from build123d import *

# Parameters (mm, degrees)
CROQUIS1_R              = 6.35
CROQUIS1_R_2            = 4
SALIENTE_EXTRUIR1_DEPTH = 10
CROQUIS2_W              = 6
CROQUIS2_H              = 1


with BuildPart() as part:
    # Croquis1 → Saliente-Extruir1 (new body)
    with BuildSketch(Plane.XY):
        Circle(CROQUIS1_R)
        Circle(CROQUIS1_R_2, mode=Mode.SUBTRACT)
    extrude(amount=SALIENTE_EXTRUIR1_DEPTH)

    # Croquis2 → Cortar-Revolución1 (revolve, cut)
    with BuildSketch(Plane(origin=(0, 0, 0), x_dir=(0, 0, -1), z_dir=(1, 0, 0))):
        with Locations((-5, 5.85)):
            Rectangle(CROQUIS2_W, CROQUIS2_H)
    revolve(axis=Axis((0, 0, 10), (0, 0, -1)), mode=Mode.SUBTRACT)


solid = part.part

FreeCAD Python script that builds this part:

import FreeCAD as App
import Part
import Sketcher


def add_polygon(sketch, points):
    """Adds a closed chain of lines whose ends are joined by coincident constraints."""
    first, n = sketch.GeometryCount, len(points)
    for a, b in zip(points, points[1:] + points[:1]):
        sketch.addGeometry(Part.LineSegment(App.Vector(*a, 0), App.Vector(*b, 0)), False)
    for i in range(n):
        sketch.addConstraint(Sketcher.Constraint("Coincident", first + i, 2, first + (i + 1) % n, 1))

doc = App.newDocument("Part")
body = doc.addObject("PartDesign::Body", "Body")

sketch1 = body.newObject("Sketcher::SketchObject", "Sketch")
sketch1.AttachmentSupport = (doc.getObject("XY_Plane"), [""])
sketch1.MapMode = "FlatFace"
sketch1.addGeometry([
    Part.Circle(App.Vector(0, 0, 0), App.Vector(0, 0, 1), 6.3),
    Part.Circle(App.Vector(0, 0, 0), App.Vector(0, 0, 1), 4),
], False)
sketch1.addConstraint([
    Sketcher.Constraint("Coincident", 0, 3, -1, 1),
    Sketcher.Constraint("Coincident", 1, 3, -1, 1),
    Sketcher.Constraint("Diameter", 1, 8.0),
    Sketcher.Constraint("Diameter", 0, 12.7),
])
pad1 = body.newObject("PartDesign::Pad", "Pad")
pad1.Profile = sketch1
pad1.Length = 10

sketch2 = body.newObject("Sketcher::SketchObject", "Sketch001")
sketch2.AttachmentSupport = (doc.getObject("YZ_Plane"), [""])
sketch2.MapMode = "FlatFace"
add_polygon(sketch2, [(6.3, 8), (5.3, 8), (5.3, 2), (6.3, 2)])
sketch2.addConstraint([
    Sketcher.Constraint("Horizontal", 0),
    Sketcher.Constraint("Vertical", 1),
    Sketcher.Constraint("Horizontal", 2),
    Sketcher.Constraint("Vertical", 3),
    Sketcher.Constraint("DistanceX", 0, 2, 0, 1, 1.0),
    Sketcher.Constraint("DistanceY", 1, 2, 1, 1, 6.0),
    Sketcher.Constraint("DistanceY", -1, 1, 0, 2, 8.0),
    Sketcher.Constraint("DistanceX", -1, 1, 0, 2, 5.35),
])
groove = body.newObject("PartDesign::Groove", "Groove")
groove.Profile = sketch2
groove.ReferenceAxis = (sketch2, ["V_Axis"])
groove.Angle = 360

doc.recompute()
